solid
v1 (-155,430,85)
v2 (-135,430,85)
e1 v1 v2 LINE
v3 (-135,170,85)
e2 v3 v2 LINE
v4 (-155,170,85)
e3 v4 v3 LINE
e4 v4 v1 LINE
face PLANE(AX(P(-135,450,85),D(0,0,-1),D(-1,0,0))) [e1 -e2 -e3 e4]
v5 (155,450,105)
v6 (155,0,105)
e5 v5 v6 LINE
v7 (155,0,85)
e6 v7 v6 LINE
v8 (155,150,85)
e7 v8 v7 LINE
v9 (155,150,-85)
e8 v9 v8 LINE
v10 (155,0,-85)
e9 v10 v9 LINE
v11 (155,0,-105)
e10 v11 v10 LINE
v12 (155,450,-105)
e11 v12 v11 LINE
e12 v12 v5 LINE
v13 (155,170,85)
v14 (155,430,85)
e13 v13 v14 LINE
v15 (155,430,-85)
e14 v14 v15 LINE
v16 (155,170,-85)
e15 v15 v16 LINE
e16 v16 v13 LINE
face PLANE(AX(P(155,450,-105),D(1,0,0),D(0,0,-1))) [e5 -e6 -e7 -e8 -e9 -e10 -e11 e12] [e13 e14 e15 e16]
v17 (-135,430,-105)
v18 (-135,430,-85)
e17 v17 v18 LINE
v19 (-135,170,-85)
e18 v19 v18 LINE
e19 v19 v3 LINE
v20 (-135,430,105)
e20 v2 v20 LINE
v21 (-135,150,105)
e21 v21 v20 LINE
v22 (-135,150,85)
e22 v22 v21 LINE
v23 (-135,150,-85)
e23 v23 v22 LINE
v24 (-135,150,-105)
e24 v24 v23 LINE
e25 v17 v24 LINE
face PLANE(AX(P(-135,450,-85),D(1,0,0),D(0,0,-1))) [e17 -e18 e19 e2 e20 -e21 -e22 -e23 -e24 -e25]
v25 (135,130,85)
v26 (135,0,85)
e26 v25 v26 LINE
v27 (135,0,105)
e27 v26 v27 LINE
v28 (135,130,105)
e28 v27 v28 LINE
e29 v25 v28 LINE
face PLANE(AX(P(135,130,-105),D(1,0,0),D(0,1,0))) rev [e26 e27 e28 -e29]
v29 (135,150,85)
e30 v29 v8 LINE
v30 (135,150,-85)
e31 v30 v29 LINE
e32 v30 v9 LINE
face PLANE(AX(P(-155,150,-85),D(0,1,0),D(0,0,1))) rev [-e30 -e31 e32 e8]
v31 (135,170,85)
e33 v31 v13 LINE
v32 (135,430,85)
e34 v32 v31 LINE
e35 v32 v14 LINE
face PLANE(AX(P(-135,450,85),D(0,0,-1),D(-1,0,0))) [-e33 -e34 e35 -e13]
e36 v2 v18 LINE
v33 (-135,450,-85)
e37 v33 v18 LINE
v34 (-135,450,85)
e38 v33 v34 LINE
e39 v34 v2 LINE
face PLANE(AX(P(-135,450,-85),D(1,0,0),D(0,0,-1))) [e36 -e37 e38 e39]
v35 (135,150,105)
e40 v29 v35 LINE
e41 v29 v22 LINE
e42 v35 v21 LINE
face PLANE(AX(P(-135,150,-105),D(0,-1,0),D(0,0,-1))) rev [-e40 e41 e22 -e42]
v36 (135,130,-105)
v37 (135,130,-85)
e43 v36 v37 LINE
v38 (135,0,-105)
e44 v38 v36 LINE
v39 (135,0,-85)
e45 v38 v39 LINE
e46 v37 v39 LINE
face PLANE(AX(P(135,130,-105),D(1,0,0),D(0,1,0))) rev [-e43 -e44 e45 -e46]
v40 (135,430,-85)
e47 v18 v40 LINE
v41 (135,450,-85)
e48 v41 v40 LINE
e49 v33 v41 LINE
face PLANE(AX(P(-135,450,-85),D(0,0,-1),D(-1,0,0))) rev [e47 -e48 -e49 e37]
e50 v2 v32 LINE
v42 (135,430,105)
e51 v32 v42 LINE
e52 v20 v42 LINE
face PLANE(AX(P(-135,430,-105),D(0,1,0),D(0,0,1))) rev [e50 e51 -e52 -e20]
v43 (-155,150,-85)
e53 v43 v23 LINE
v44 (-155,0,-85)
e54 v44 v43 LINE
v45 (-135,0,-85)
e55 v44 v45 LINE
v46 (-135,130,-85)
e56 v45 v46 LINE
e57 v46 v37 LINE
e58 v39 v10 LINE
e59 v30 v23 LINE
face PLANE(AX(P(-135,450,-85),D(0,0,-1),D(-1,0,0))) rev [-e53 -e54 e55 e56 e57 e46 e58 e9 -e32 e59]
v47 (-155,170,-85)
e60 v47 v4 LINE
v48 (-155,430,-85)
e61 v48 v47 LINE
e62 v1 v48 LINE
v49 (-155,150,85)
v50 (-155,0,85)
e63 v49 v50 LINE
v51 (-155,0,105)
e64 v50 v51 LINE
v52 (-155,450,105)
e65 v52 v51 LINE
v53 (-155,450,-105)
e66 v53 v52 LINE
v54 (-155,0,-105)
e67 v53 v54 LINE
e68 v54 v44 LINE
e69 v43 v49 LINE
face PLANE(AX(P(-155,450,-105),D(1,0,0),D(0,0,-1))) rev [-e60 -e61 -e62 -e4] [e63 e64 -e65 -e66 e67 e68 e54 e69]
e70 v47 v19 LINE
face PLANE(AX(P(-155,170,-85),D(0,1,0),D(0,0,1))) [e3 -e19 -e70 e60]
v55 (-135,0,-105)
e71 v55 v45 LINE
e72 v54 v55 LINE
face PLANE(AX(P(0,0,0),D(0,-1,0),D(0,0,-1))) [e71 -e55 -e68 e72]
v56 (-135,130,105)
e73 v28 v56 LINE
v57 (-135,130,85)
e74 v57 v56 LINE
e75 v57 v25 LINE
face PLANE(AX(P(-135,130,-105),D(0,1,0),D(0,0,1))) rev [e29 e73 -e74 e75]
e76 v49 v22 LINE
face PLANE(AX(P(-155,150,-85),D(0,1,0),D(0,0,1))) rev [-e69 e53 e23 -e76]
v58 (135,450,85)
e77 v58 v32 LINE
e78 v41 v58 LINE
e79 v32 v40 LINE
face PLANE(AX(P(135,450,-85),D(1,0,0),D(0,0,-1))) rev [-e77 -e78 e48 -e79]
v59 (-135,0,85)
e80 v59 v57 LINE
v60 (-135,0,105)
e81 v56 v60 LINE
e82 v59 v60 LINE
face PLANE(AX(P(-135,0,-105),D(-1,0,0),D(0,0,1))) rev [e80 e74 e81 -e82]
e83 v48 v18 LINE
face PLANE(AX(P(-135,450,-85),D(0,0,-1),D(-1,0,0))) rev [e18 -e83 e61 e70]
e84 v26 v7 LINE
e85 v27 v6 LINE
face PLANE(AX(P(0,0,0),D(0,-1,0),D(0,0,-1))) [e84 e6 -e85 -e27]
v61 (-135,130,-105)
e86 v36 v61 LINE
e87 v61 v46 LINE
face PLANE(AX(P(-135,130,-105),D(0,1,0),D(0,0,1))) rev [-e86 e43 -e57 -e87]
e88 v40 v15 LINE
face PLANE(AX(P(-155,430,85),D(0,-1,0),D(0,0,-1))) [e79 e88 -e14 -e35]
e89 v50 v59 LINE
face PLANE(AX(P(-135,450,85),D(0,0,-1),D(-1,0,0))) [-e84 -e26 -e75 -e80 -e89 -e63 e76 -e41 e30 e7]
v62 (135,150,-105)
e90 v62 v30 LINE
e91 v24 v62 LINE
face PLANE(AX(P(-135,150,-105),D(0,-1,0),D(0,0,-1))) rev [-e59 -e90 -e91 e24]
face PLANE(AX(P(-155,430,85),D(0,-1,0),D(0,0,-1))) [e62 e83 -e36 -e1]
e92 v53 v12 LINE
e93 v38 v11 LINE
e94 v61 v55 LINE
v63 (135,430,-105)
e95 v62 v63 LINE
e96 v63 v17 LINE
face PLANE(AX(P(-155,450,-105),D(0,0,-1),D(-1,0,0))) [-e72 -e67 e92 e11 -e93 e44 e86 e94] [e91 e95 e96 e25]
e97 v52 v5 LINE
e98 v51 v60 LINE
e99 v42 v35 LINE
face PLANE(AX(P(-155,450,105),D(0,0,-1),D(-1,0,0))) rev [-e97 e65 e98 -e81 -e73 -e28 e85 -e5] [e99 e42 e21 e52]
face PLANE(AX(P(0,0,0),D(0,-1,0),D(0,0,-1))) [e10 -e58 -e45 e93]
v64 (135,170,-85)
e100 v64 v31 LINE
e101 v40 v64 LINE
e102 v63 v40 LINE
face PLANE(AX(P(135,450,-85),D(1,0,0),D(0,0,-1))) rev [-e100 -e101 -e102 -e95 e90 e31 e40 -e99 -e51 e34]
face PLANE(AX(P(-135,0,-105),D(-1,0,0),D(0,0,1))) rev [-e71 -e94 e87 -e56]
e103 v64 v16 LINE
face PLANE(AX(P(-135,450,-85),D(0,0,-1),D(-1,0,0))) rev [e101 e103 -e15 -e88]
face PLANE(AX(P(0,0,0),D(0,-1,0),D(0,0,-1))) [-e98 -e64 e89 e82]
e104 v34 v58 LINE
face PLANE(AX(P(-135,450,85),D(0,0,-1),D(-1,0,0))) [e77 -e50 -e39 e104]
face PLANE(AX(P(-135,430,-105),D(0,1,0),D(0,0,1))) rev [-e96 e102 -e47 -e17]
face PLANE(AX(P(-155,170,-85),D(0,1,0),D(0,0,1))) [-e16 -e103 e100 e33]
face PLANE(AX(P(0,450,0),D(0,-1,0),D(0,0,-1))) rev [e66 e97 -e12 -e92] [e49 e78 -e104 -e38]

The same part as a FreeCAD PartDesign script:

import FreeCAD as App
import Part
import Sketcher

V = App.Vector

doc = App.newDocument("Part")
params = doc.addObject("Spreadsheet::Sheet", "Params")
for row, (alias, value) in enumerate([
    ("sketch1_width", "310 mm"),
    ("sketch1_width2", "270 mm"),
    ("sketch1_height", "210 mm"),
    ("sketch1_height2", "170 mm"),
    ("pad1_length", "450 mm"),
    ("sketch2_width", "260 mm"),
    ("sketch2_height", "170 mm"),
    ("pocket1_length", "310 mm"),
    ("sketch3_width", "150 mm"),
    ("sketch3_height", "170 mm"),
    ("pocket2_length", "310 mm"),
    ("sketch4_width", "270 mm"),
    ("sketch4_height", "130 mm"),
    ("sketch5_width", "270 mm"),
    ("sketch5_height", "280 mm"),
], start=1):
    params.set(f"A{row}", alias)
    params.set(f"B{row}", "=" + value)
    params.setAlias(f"B{row}", alias)

body = doc.addObject("PartDesign::Body", "Body")

# Sketch on XZ plane
sketch1 = doc.addObject("Sketcher::SketchObject", "Sketch")
body.addObject(sketch1)
sketch1.AttachmentSupport = (doc.XZ_Plane, [""])
sketch1.MapMode = "FlatFace"
sketch1.addGeometry(Part.LineSegment(V(-155, -105, 0), V(-155, 105, 0)), False)
sketch1.addGeometry(Part.LineSegment(V(-155, 105, 0), V(155, 105, 0)), False)
sketch1.addGeometry(Part.LineSegment(V(155, 105, 0), V(155, -105, 0)), False)
sketch1.addGeometry(Part.LineSegment(V(155, -105, 0), V(-155, -105, 0)), False)
sketch1.addGeometry(Part.LineSegment(V(135, 85, 0), V(-135, 85, 0)), False)
sketch1.addGeometry(Part.LineSegment(V(-135, 85, 0), V(-135, -85, 0)), False)
sketch1.addGeometry(Part.LineSegment(V(-135, -85, 0), V(135, -85, 0)), False)
sketch1.addGeometry(Part.LineSegment(V(135, -85, 0), V(135, 85, 0)), False)
sketch1.addConstraint(Sketcher.Constraint("Coincident", 0, 2, 1, 1))
sketch1.addConstraint(Sketcher.Constraint("Coincident", 1, 2, 2, 1))
sketch1.addConstraint(Sketcher.Constraint("Coincident", 2, 2, 3, 1))
sketch1.addConstraint(Sketcher.Constraint("Coincident", 3, 2, 0, 1))
sketch1.addConstraint(Sketcher.Constraint("Coincident", 4, 2, 5, 1))
sketch1.addConstraint(Sketcher.Constraint("Coincident", 5, 2, 6, 1))
sketch1.addConstraint(Sketcher.Constraint("Coincident", 6, 2, 7, 1))
sketch1.addConstraint(Sketcher.Constraint("Coincident", 7, 2, 4, 1))
sketch1.addConstraint(Sketcher.Constraint("Vertical", 0))
sketch1.addConstraint(Sketcher.Constraint("Horizontal", 1))
sketch1.addConstraint(Sketcher.Constraint("Vertical", 2))
sketch1.addConstraint(Sketcher.Constraint("Horizontal", 3))
sketch1.addConstraint(Sketcher.Constraint("Horizontal", 4))
sketch1.addConstraint(Sketcher.Constraint("Vertical", 5))
sketch1.addConstraint(Sketcher.Constraint("Horizontal", 6))
sketch1.addConstraint(Sketcher.Constraint("Vertical", 7))
sketch1.addConstraint(Sketcher.Constraint("Symmetric", 0, 2, 2, 2, -1, 1))
sketch1.addConstraint(Sketcher.Constraint("Symmetric", 4, 2, 6, 2, -1, 1))
sketch1.addConstraint(Sketcher.Constraint("DistanceX", 1, 1, 1, 2, 310.0))
sketch1.addConstraint(Sketcher.Constraint("DistanceX", 4, 2, 4, 1, 270.0))
sketch1.addConstraint(Sketcher.Constraint("DistanceY", 0, 1, 0, 2, 210.0))
sketch1.addConstraint(Sketcher.Constraint("DistanceY", 5, 2, 5, 1, 170.0))
sketch1.setExpression("Constraints[18]", "Params.sketch1_width")
sketch1.setExpression("Constraints[19]", "Params.sketch1_width2")
sketch1.setExpression("Constraints[20]", "Params.sketch1_height")
sketch1.setExpression("Constraints[21]", "Params.sketch1_height2")
pad1 = doc.addObject("PartDesign::Pad", "Pad")
body.addObject(pad1)
pad1.Profile = sketch1
pad1.setExpression("Length", "Params.pad1_length")
pad1.Reversed = True

# Sketch on YZ plane
sketch2 = doc.addObject("Sketcher::SketchObject", "Sketch001")
body.addObject(sketch2)
sketch2.AttachmentSupport = (doc.YZ_Plane, [""])
sketch2.MapMode = "FlatFace"
sketch2.AttachmentOffset = App.Placement(V(0, 0, 155), App.Rotation())
sketch2.addGeometry(Part.LineSegment(V(430, 85, 0), V(170, 85, 0)), False)
sketch2.addGeometry(Part.LineSegment(V(170, 85, 0), V(170, -85, 0)), False)
sketch2.addGeometry(Part.LineSegment(V(170, -85, 0), V(430, -85, 0)), False)
sketch2.addGeometry(Part.LineSegment(V(430, -85, 0), V(430, 85, 0)), False)
sketch2.addConstraint(Sketcher.Constraint("Coincident", 0, 2, 1, 1))
sketch2.addConstraint(Sketcher.Constraint("Coincident", 1, 2, 2, 1))
sketch2.addConstraint(Sketcher.Constraint("Coincident", 2, 2, 3, 1))
sketch2.addConstraint(Sketcher.Constraint("Coincident", 3, 2, 0, 1))
sketch2.addConstraint(Sketcher.Constraint("Horizontal", 0))
sketch2.addConstraint(Sketcher.Constraint("Vertical", 1))
sketch2.addConstraint(Sketcher.Constraint("Horizontal", 2))
sketch2.addConstraint(Sketcher.Constraint("Vertical", 3))
sketch2.addConstraint(Sketcher.Constraint("DistanceX", 0, 2, 0, 1, 260.0))
sketch2.addConstraint(Sketcher.Constraint("DistanceY", 1, 2, 1, 1, 170.0))
sketch2.addConstraint(Sketcher.Constraint("DistanceX", -1, 1, 0, 2, 170.0))
sketch2.addConstraint(Sketcher.Constraint("DistanceY", -1, 1, 0, 2, 85.0))
sketch2.setExpression("Constraints[8]", "Params.sketch2_width")
sketch2.setExpression("Constraints[9]", "Params.sketch2_height")
pocket1 = doc.addObject("PartDesign::Pocket", "Pocket")
body.addObject(pocket1)
pocket1.Profile = sketch2
pocket1.setExpression("Length", "Params.pocket1_length")

# Sketch on YZ plane
sketch3 = doc.addObject("Sketcher::SketchObject", "Sketch002")
body.addObject(sketch3)
sketch3.AttachmentSupport = (doc.YZ_Plane, [""])
sketch3.MapMode = "FlatFace"
sketch3.AttachmentOffset = App.Placement(V(0, 0, 155), App.Rotation())
sketch3.addGeometry(Part.LineSegment(V(150, 85, 0), V(0, 85, 0)), False)
sketch3.addGeometry(Part.LineSegment(V(0, 85, 0), V(0, -85, 0)), False)
sketch3.addGeometry(Part.LineSegment(V(0, -85, 0), V(150, -85, 0)), False)
sketch3.addGeometry(Part.LineSegment(V(150, -85, 0), V(150, 85, 0)), False)
sketch3.addConstraint(Sketcher.Constraint("Coincident", 0, 2, 1, 1))
sketch3.addConstraint(Sketcher.Constraint("Coincident", 1, 2, 2, 1))
sketch3.addConstraint(Sketcher.Constraint("Coincident", 2, 2, 3, 1))
sketch3.addConstraint(Sketcher.Constraint("Coincident", 3, 2, 0, 1))
sketch3.addConstraint(Sketcher.Constraint("Horizontal", 0))
sketch3.addConstraint(Sketcher.Constraint("Vertical", 1))
sketch3.addConstraint(Sketcher.Constraint("Horizontal", 2))
sketch3.addConstraint(Sketcher.Constraint("Vertical", 3))
sketch3.addConstraint(Sketcher.Constraint("Symmetric", 0, 2, 1, 2, -1, 1))
sketch3.addConstraint(Sketcher.Constraint("DistanceX", 0, 2, 0, 1, 150.0))
sketch3.addConstraint(Sketcher.Constraint("DistanceY", 1, 2, 1, 1, 170.0))
sketch3.setExpression("Constraints[9]", "Params.sketch3_width")
sketch3.setExpression("Constraints[10]", "Params.sketch3_height")
pocket2 = doc.addObject("PartDesign::Pocket", "Pocket001")
body.addObject(pocket2)
pocket2.Profile = sketch3
pocket2.setExpression("Length", "Params.pocket2_length")

# Sketch on XY plane
sketch4 = doc.addObject("Sketcher::SketchObject", "Sketch003")
body.addObject(sketch4)
sketch4.AttachmentSupport = (doc.XY_Plane, [""])
sketch4.MapMode = "FlatFace"
sketch4.AttachmentOffset = App.Placement(V(0, 0, 105), App.Rotation())
sketch4.addGeometry(Part.LineSegment(V(-135, 130, 0), V(-135, 0, 0)), False)
sketch4.addGeometry(Part.LineSegment(V(-135, 0, 0), V(135, 0, 0)), False)
sketch4.addGeometry(Part.LineSegment(V(135, 0, 0), V(135, 130, 0)), False)
sketch4.addGeometry(Part.LineSegment(V(135, 130, 0), V(-135, 130, 0)), False)
sketch4.addConstraint(Sketcher.Constraint("Coincident", 0, 2, 1, 1))
sketch4.addConstraint(Sketcher.Constraint("Coincident", 1, 2, 2, 1))
sketch4.addConstraint(Sketcher.Constraint("Coincident", 2, 2, 3, 1))
sketch4.addConstraint(Sketcher.Constraint("Coincident", 3, 2, 0, 1))
sketch4.addConstraint(Sketcher.Constraint("Vertical", 0))
sketch4.addConstraint(Sketcher.Constraint("Horizontal", 1))
sketch4.addConstraint(Sketcher.Constraint("Vertical", 2))
sketch4.addConstraint(Sketcher.Constraint("Horizontal", 3))
sketch4.addConstraint(Sketcher.Constraint("Symmetric", 0, 2, 1, 2, -1, 1))
sketch4.addConstraint(Sketcher.Constraint("DistanceX", 1, 1, 1, 2, 270.0))
sketch4.addConstraint(Sketcher.Constraint("DistanceY", 0, 2, 0, 1, 130.0))
sketch4.setExpression("Constraints[9]", "Params.sketch4_width")
sketch4.setExpression("Constraints[10]", "Params.sketch4_height")
pocket3 = doc.addObject("PartDesign::Pocket", "Pocket002")
body.addObject(pocket3)
pocket3.Profile = sketch4
pocket3.Type = "ThroughAll"

# Sketch on XY plane
sketch5 = doc.addObject("Sketcher::SketchObject", "Sketch004")
body.addObject(sketch5)
sketch5.AttachmentSupport = (doc.XY_Plane, [""])
sketch5.MapMode = "FlatFace"
sketch5.AttachmentOffset = App.Placement(V(0, 0, 115), App.Rotation())
sketch5.addGeometry(Part.LineSegment(V(-135, 430, 0), V(-135, 150, 0)), False)
sketch5.addGeometry(Part.LineSegment(V(-135, 150, 0), V(135, 150, 0)), False)
sketch5.addGeometry(Part.LineSegment(V(135, 150, 0), V(135, 430, 0)), False)
sketch5.addGeometry(Part.LineSegment(V(135, 430, 0), V(-135, 430, 0)), False)
sketch5.addConstraint(Sketcher.Constraint("Coincident", 0, 2, 1, 1))
sketch5.addConstraint(Sketcher.Constraint("Coincident", 1, 2, 2, 1))
sketch5.addConstraint(Sketcher.Constraint("Coincident", 2, 2, 3, 1))
sketch5.addConstraint(Sketcher.Constraint("Coincident", 3, 2, 0, 1))
sketch5.addConstraint(Sketcher.Constraint("Vertical", 0))
sketch5.addConstraint(Sketcher.Constraint("Horizontal", 1))
sketch5.addConstraint(Sketcher.Constraint("Vertical", 2))
sketch5.addConstraint(Sketcher.Constraint("Horizontal", 3))
sketch5.addConstraint(Sketcher.Constraint("DistanceX", 1, 1, 1, 2, 270.0))
sketch5.addConstraint(Sketcher.Constraint("DistanceY", 0, 2, 0, 1, 280.0))
sketch5.addConstraint(Sketcher.Constraint("DistanceX", 0, 2, -1, 1, 135.0))
sketch5.addConstraint(Sketcher.Constraint("DistanceY", -1, 1, 0, 2, 150.0))
sketch5.setExpression("Constraints[8]", "Params.sketch5_width")
sketch5.setExpression("Constraints[9]", "Params.sketch5_height")
pocket4 = doc.addObject("PartDesign::Pocket", "Pocket003")
body.addObject(pocket4)
pocket4.Profile = sketch5
pocket4.Type = "ThroughAll"

doc.recompute()
